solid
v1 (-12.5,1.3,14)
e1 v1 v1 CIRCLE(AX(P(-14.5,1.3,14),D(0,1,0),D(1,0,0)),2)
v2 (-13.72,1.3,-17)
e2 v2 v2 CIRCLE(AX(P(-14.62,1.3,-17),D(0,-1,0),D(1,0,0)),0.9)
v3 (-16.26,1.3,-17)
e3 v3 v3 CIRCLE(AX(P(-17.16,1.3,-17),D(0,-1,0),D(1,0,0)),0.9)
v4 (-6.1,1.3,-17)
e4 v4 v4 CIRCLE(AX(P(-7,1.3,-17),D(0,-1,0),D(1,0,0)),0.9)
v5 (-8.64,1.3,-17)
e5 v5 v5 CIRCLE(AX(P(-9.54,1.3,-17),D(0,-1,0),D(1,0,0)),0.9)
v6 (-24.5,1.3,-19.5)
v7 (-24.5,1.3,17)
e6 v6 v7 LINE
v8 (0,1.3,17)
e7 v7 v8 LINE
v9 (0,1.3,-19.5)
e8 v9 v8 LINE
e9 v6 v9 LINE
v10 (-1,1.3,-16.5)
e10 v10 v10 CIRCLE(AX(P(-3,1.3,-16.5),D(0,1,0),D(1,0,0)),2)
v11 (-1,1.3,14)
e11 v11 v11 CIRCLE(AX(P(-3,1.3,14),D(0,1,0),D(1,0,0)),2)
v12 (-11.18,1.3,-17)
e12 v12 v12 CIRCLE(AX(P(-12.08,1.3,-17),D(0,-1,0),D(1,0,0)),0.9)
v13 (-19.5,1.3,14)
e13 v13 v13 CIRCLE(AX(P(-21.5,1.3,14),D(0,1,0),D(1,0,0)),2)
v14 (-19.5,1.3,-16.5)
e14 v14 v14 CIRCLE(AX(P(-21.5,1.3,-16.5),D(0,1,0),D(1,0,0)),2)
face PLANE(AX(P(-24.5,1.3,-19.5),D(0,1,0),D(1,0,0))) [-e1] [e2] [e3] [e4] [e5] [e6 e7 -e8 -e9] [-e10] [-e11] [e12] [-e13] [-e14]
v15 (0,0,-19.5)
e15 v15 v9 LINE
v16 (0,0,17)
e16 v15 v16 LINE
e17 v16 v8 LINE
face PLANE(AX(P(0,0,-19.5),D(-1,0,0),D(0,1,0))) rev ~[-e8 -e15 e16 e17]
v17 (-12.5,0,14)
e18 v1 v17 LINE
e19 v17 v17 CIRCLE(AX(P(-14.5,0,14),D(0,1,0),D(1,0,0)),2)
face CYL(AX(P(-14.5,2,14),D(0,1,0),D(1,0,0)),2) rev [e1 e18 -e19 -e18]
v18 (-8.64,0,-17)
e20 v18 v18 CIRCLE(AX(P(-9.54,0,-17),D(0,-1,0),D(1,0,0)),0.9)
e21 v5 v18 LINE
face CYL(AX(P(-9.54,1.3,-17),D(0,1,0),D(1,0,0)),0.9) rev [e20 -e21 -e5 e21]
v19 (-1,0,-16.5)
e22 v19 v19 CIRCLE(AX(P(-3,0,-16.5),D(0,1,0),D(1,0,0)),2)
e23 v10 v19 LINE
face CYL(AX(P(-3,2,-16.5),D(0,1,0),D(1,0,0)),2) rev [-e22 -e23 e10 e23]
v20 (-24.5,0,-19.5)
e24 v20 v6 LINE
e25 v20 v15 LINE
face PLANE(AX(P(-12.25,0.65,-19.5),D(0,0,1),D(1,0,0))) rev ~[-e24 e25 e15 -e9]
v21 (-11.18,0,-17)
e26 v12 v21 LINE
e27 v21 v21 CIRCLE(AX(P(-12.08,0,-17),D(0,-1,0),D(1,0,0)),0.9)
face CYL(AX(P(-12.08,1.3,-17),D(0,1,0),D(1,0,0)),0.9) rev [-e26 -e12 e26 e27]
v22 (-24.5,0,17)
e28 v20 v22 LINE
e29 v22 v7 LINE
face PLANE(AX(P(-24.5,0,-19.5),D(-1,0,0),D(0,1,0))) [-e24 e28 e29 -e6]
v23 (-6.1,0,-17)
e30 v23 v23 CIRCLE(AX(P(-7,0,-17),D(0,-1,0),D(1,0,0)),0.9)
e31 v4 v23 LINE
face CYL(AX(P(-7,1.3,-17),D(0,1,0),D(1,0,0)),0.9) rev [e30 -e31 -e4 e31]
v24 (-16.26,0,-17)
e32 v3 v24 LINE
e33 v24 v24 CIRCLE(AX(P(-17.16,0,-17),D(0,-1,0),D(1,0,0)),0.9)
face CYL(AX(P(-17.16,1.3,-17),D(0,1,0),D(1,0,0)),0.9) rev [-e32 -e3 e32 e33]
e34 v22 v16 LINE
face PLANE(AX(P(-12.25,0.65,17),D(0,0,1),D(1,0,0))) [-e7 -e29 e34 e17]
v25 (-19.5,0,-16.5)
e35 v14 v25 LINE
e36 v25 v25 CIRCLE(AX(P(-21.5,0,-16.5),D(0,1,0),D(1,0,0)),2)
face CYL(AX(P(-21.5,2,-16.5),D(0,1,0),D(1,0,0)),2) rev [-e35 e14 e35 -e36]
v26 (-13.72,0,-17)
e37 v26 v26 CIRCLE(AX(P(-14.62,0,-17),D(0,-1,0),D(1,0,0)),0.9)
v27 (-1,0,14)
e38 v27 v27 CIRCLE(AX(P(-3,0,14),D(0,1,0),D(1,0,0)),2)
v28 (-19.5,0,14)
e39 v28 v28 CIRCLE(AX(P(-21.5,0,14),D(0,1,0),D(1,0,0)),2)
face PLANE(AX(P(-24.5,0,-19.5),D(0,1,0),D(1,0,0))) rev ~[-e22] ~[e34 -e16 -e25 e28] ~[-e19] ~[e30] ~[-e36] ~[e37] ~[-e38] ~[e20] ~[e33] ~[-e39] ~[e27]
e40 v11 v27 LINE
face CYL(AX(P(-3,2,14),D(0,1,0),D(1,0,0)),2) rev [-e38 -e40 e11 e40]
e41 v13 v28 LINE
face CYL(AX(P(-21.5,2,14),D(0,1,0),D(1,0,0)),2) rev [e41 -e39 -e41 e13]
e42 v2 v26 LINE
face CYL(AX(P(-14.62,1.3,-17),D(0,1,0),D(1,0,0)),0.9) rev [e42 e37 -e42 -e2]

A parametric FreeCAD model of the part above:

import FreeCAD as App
import Part
import Sketcher

V = App.Vector
Q = App.Units.Quantity

doc = App.newDocument("Part")
body = doc.addObject("PartDesign::Body", "Body")

# Sketch on XZ plane
sketch1 = body.newObject("Sketcher::SketchObject", "Sketch")
sketch1.AttachmentSupport = (doc.getObject("XZ_Plane"), [""])
sketch1.MapMode = "FlatFace"
sketch1.AttachmentOffset = App.Placement(V(0, 0, -2), App.Rotation())
sketch1.addGeometry(Part.Circle(V(-3, 14, 0), V(0, 0, 1), 2), False)
sketch1.addConstraint(Sketcher.Constraint("Diameter", 0, Q("4 mm")))
sketch1.addConstraint(Sketcher.Constraint("DistanceX", 0, 3, -1, 1, Q("3 mm")))
sketch1.addConstraint(Sketcher.Constraint("DistanceY", -1, 1, 0, 3, Q("14 mm")))
pad1 = body.newObject("PartDesign::Pad", "Pad")
pad1.Profile = sketch1
pad1.Length = 10
body2 = doc.addObject("PartDesign::Body", "Body001")

# Sketch on XZ plane
sketch2 = body2.newObject("Sketcher::SketchObject", "Sketch001")
sketch2.AttachmentSupport = (doc.getObject("XZ_Plane001"), [""])
sketch2.MapMode = "FlatFace"
sketch2.AttachmentOffset = App.Placement(V(0, 0, -2), App.Rotation())
sketch2.addGeometry(Part.Circle(V(-14.5, 14, 0), V(0, 0, 1), 2), False)
sketch2.addConstraint(Sketcher.Constraint("Diameter", 0, Q("4 mm")))
sketch2.addConstraint(Sketcher.Constraint("DistanceY", -1, 1, 0, 3, Q("14 mm")))
sketch2.addConstraint(Sketcher.Constraint("DistanceX", 0, 3, -1, 1, Q("14.5 mm")))
pad2 = body2.newObject("PartDesign::Pad", "Pad001")
pad2.Profile = sketch2
pad2.Length = 10
body3 = doc.addObject("PartDesign::Body", "Body002")

# Sketch on XZ plane
sketch3 = body3.newObject("Sketcher::SketchObject", "Sketch002")
sketch3.AttachmentSupport = (doc.getObject("XZ_Plane002"), [""])
sketch3.MapMode = "FlatFace"
sketch3.AttachmentOffset = App.Placement(V(0, 0, -2), App.Rotation())
sketch3.addGeometry(Part.Circle(V(-21.5, 14, 0), V(0, 0, 1), 2), False)
sketch3.addConstraint(Sketcher.Constraint("Diameter", 0, Q("4 mm")))
sketch3.addConstraint(Sketcher.Constraint("DistanceY", -1, 1, 0, 3, Q("14 mm")))
sketch3.addConstraint(Sketcher.Constraint("DistanceX", 0, 3, -1, 1, Q("21.5 mm")))
pad3 = body3.newObject("PartDesign::Pad", "Pad002")
pad3.Profile = sketch3
pad3.Length = 10
body4 = doc.addObject("PartDesign::Body", "Body003")

# Sketch on XZ plane
sketch4 = body4.newObject("Sketcher::SketchObject", "Sketch003")
sketch4.AttachmentSupport = (doc.getObject("XZ_Plane003"), [""])
sketch4.MapMode = "FlatFace"
sketch4.AttachmentOffset = App.Placement(V(0, 0, -2), App.Rotation())
sketch4.addGeometry(Part.Circle(V(-3, -16.5, 0), V(0, 0, 1), 2), False)
sketch4.addConstraint(Sketcher.Constraint("Diameter", 0, Q("4 mm")))
sketch4.addConstraint(Sketcher.Constraint("DistanceX", 0, 3, -1, 1, Q("3 mm")))
sketch4.addConstraint(Sketcher.Constraint("DistanceY", 0, 3, -1, 1, Q("16.5 mm")))
pad4 = body4.newObject("PartDesign::Pad", "Pad003")
pad4.Profile = sketch4
pad4.Length = 10
body5 = doc.addObject("PartDesign::Body", "Body004")

# Sketch on XZ plane
sketch5 = body5.newObject("Sketcher::SketchObject", "Sketch004")
sketch5.AttachmentSupport = (doc.getObject("XZ_Plane004"), [""])
sketch5.MapMode = "FlatFace"
sketch5.AttachmentOffset = App.Placement(V(0, 0, -2), App.Rotation())
sketch5.addGeometry(Part.Circle(V(-21.5, -16.5, 0), V(0, 0, 1), 2), False)
sketch5.addConstraint(Sketcher.Constraint("Diameter", 0, Q("4 mm")))
sketch5.addConstraint(Sketcher.Constraint("DistanceX", 0, 3, -1, 1, Q("21.5 mm")))
sketch5.addConstraint(Sketcher.Constraint("DistanceY", 0, 3, -1, 1, Q("16.5 mm")))
pad5 = body5.newObject("PartDesign::Pad", "Pad004")
pad5.Profile = sketch5
pad5.Length = 10
body6 = doc.addObject("PartDesign::Body", "Body005")

# Sketch on XZ plane
sketch6 = body6.newObject("Sketcher::SketchObject", "Sketch005")
sketch6.AttachmentSupport = (doc.getObject("XZ_Plane005"), [""])
sketch6.MapMode = "FlatFace"
sketch6.AttachmentOffset = App.Placement(V(0, 0, -1.3), App.Rotation())
sketch6.addGeometry(Part.Circle(V(-14.62, -17, 0), V(0, 0, 1), 0.9), False)
sketch6.addConstraint(Sketcher.Constraint("Diameter", 0, Q("1.8 mm")))
sketch6.addConstraint(Sketcher.Constraint("DistanceY", 0, 3, -1, 1, Q("17 mm")))
sketch6.addConstraint(Sketcher.Constraint("DistanceX", 0, 3, -1, 1, Q("14.62 mm")))
pad6 = body6.newObject("PartDesign::Pad", "Pad005")
pad6.Profile = sketch6
pad6.Length = 1.3
body7 = doc.addObject("PartDesign::Body", "Body006")

# Sketch on XZ plane
sketch7 = body7.newObject("Sketcher::SketchObject", "Sketch006")
sketch7.AttachmentSupport = (doc.getObject("XZ_Plane006"), [""])
sketch7.MapMode = "FlatFace"
sketch7.AttachmentOffset = App.Placement(V(0, 0, -1.3), App.Rotation())
sketch7.addGeometry(Part.Circle(V(-12.08, -17, 0), V(0, 0, 1), 0.9), False)
sketch7.addConstraint(Sketcher.Constraint("Diameter", 0, Q("1.8 mm")))
sketch7.addConstraint(Sketcher.Constraint("DistanceY", 0, 3, -1, 1, Q("17 mm")))
sketch7.addConstraint(Sketcher.Constraint("DistanceX", 0, 3, -1, 1, Q("12.08 mm")))
pad7 = body7.newObject("PartDesign::Pad", "Pad006")
pad7.Profile = sketch7
pad7.Length = 1.3
body8 = doc.addObject("PartDesign::Body", "Body007")

# Sketch on XZ plane
sketch8 = body8.newObject("Sketcher::SketchObject", "Sketch007")
sketch8.AttachmentSupport = (doc.getObject("XZ_Plane007"), [""])
sketch8.MapMode = "FlatFace"
sketch8.AttachmentOffset = App.Placement(V(0, 0, -1.3), App.Rotation())
sketch8.addGeometry(Part.Circle(V(-17.16, -17, 0), V(0, 0, 1), 0.9), False)
sketch8.addConstraint(Sketcher.Constraint("Diameter", 0, Q("1.8 mm")))
sketch8.addConstraint(Sketcher.Constraint("DistanceY", 0, 3, -1, 1, Q("17 mm")))
sketch8.addConstraint(Sketcher.Constraint("DistanceX", 0, 3, -1, 1, Q("17.16 mm")))
pad8 = body8.newObject("PartDesign::Pad", "Pad007")
pad8.Profile = sketch8
pad8.Length = 1.3
body9 = doc.addObject("PartDesign::Body", "Body008")

# Sketch on XZ plane
sketch9 = body9.newObject("Sketcher::SketchObject", "Sketch008")
sketch9.AttachmentSupport = (doc.getObject("XZ_Plane008"), [""])
sketch9.MapMode = "FlatFace"
sketch9.AttachmentOffset = App.Placement(V(0, 0, -1.3), App.Rotation())
sketch9.addGeometry(Part.Circle(V(-9.54, -17, 0), V(0, 0, 1), 0.9), False)
sketch9.addConstraint(Sketcher.Constraint("Diameter", 0, Q("1.8 mm")))
sketch9.addConstraint(Sketcher.Constraint("DistanceY", 0, 3, -1, 1, Q("17 mm")))
sketch9.addConstraint(Sketcher.Constraint("DistanceX", 0, 3, -1, 1, Q("9.54 mm")))
pad9 = body9.newObject("PartDesign::Pad", "Pad008")
pad9.Profile = sketch9
pad9.Length = 1.3
body10 = doc.addObject("PartDesign::Body", "Body009")
body10.AllowCompound = True

# Sketch on XZ plane
sketch10 = body10.newObject("Sketcher::SketchObject", "Sketch009")
sketch10.AttachmentSupport = (doc.getObject("XZ_Plane009"), [""])
sketch10.MapMode = "FlatFace"
sketch10.AttachmentOffset = App.Placement(V(0, 0, -1.3), App.Rotation())
sketch10.addGeometry(Part.Circle(V(-7, -17, 0), V(0, 0, 1), 0.9), False)
sketch10.addConstraint(Sketcher.Constraint("Diameter", 0, Q("1.8 mm")))
sketch10.addConstraint(Sketcher.Constraint("DistanceX", 0, 3, -1, 1, Q("7 mm")))
sketch10.addConstraint(Sketcher.Constraint("DistanceY", 0, 3, -1, 1, Q("17 mm")))
pad10 = body10.newObject("PartDesign::Pad", "Pad009")
pad10.Profile = sketch10
pad10.Length = 1.3
doc.recompute()

boolean = body10.newObject("PartDesign::Boolean", "Boolean")
boolean.Type = "Fuse"
boolean.addObjects([body6])
doc.recompute()

boolean2 = body10.newObject("PartDesign::Boolean", "Boolean001")
boolean2.Type = "Fuse"
boolean2.addObjects([body7])
doc.recompute()

boolean3 = body10.newObject("PartDesign::Boolean", "Boolean002")
boolean3.Type = "Fuse"
boolean3.addObjects([body8])
doc.recompute()

boolean4 = body10.newObject("PartDesign::Boolean", "Boolean003")
boolean4.Type = "Fuse"
boolean4.addObjects([body9])
doc.recompute()

boolean5 = body10.newObject("PartDesign::Boolean", "Boolean004")
boolean5.Type = "Fuse"
boolean5.addObjects([body])
doc.recompute()

boolean6 = body10.newObject("PartDesign::Boolean", "Boolean005")
boolean6.Type = "Fuse"
boolean6.addObjects([body2])
doc.recompute()

boolean7 = body10.newObject("PartDesign::Boolean", "Boolean006")
boolean7.Type = "Fuse"
boolean7.addObjects([body3])
doc.recompute()

boolean8 = body10.newObject("PartDesign::Boolean", "Boolean007")
boolean8.Type = "Fuse"
boolean8.addObjects([body4])
doc.recompute()

boolean9 = body10.newObject("PartDesign::Boolean", "Boolean008")
boolean9.Type = "Fuse"
boolean9.addObjects([body5])
body11 = doc.addObject("PartDesign::Body", "Body010")

# Sketch on XY plane
sketch11 = body11.newObject("Sketcher::SketchObject", "Sketch010")
sketch11.AttachmentSupport = (doc.getObject("XY_Plane010"), [""])
sketch11.MapMode = "FlatFace"
sketch11.AttachmentOffset = App.Placement(V(0, 0, -19.5), App.Rotation())
sketch11.addGeometry(Part.LineSegment(V(-24.5, 1.3, 0), V(-24.5, 0, 0)), False)
sketch11.addGeometry(Part.LineSegment(V(-24.5, 0, 0), V(0, 0, 0)), False)
sketch11.addGeometry(Part.LineSegment(V(0, 0, 0), V(0, 1.3, 0)), False)
sketch11.addGeometry(Part.LineSegment(V(0, 1.3, 0), V(-24.5, 1.3, 0)), False)
sketch11.addConstraint(Sketcher.Constraint("Coincident", 0, 2, 1, 1))
sketch11.addConstraint(Sketcher.Constraint("Coincident", 1, 2, 2, 1))
sketch11.addConstraint(Sketcher.Constraint("Coincident", 2, 2, 3, 1))
sketch11.addConstraint(Sketcher.Constraint("Coincident", 3, 2, 0, 1))
sketch11.addConstraint(Sketcher.Constraint("Vertical", 0))
sketch11.addConstraint(Sketcher.Constraint("Horizontal", 1))
sketch11.addConstraint(Sketcher.Constraint("Vertical", 2))
sketch11.addConstraint(Sketcher.Constraint("Horizontal", 3))
sketch11.addConstraint(Sketcher.Constraint("Coincident", 1, 2, -1, 1))
sketch11.addConstraint(Sketcher.Constraint("DistanceX", 1, 1, 1, 2, Q("24.5 mm")))
sketch11.addConstraint(Sketcher.Constraint("DistanceY", 0, 2, 0, 1, Q("1.3 mm")))
pad11 = body11.newObject("PartDesign::Pad", "Pad010")
pad11.Profile = sketch11
pad11.Length = 36.5
doc.recompute()

boolean10 = body11.newObject("PartDesign::Boolean", "Boolean009")
boolean10.Type = "Cut"
boolean10.addObjects([body10])

doc.recompute()
